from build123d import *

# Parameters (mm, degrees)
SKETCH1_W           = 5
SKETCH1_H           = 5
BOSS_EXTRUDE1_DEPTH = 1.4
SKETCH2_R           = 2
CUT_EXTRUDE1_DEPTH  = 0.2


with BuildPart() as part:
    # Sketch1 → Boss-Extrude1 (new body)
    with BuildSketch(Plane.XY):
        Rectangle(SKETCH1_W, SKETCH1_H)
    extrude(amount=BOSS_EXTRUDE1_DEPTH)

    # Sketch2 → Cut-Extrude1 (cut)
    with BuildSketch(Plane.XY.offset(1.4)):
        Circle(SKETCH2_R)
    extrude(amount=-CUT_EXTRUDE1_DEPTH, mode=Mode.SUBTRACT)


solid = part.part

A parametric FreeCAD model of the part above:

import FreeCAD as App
import Part
import Sketcher
from FreeCAD import Vector
Q = App.Units.Quantity

doc = App.newDocument("Part")
body = doc.addObject("PartDesign::Body", "Body")

sketch1 = body.newObject("Sketcher::SketchObject", "Sketch")
sketch1.AttachmentSupport = (doc.getObject("XY_Plane"), [""])
sketch1.MapMode = "FlatFace"
sketch1.addGeometry([
    Part.LineSegment(Vector(-2, 2, 0), Vector(-2, -2, 0)),
    Part.LineSegment(Vector(-2, -2, 0), Vector(2, -2, 0)),
    Part.LineSegment(Vector(2, -2, 0), Vector(2, 2, 0)),
    Part.LineSegment(Vector(2, 2, 0), Vector(-2, 2, 0)),
], False)
sketch1.addConstraint([
    Sketcher.Constraint("Coincident", 0, 2, 1, 1),
    Sketcher.Constraint("Coincident", 1, 2, 2, 1),
    Sketcher.Constraint("Coincident", 2, 2, 3, 1),
    Sketcher.Constraint("Coincident", 3, 2, 0, 1),
    Sketcher.Constraint("Vertical", 0),
    Sketcher.Constraint("Horizontal", 1),
    Sketcher.Constraint("Vertical", 2),
    Sketcher.Constraint("Horizontal", 3),
    Sketcher.Constraint("Symmetric", 0, 2, 2, 2, -1, 1),
    Sketcher.Constraint("Equal", 3, 0),
    Sketcher.Constraint("DistanceX", 1, 1, 1, 2, Q("5 mm")),
])
pad1 = body.newObject("PartDesign::Pad", "Pad")
pad1.Profile = sketch1
pad1.Length = 1.4

sketch2 = body.newObject("Sketcher::SketchObject", "Sketch001")
sketch2.AttachmentSupport = (doc.getObject("XY_Plane"), [""])
sketch2.MapMode = "FlatFace"
sketch2.AttachmentOffset = App.Placement(Vector(0, 0, 1.4), App.Rotation())
sketch2.addGeometry(Part.Circle(Vector(0, 0, 0), Vector(0, 0, 1), 2), False)
sketch2.addConstraint([
    Sketcher.Constraint("Coincident", 0, 3, -1, 1),
    Sketcher.Constraint("Diameter", 0, Q("4 mm")),
])
pocket1 = body.newObject("PartDesign::Pocket", "Pocket")
pocket1.Profile = sketch2
pocket1.Length = 0.2

doc.recompute()
